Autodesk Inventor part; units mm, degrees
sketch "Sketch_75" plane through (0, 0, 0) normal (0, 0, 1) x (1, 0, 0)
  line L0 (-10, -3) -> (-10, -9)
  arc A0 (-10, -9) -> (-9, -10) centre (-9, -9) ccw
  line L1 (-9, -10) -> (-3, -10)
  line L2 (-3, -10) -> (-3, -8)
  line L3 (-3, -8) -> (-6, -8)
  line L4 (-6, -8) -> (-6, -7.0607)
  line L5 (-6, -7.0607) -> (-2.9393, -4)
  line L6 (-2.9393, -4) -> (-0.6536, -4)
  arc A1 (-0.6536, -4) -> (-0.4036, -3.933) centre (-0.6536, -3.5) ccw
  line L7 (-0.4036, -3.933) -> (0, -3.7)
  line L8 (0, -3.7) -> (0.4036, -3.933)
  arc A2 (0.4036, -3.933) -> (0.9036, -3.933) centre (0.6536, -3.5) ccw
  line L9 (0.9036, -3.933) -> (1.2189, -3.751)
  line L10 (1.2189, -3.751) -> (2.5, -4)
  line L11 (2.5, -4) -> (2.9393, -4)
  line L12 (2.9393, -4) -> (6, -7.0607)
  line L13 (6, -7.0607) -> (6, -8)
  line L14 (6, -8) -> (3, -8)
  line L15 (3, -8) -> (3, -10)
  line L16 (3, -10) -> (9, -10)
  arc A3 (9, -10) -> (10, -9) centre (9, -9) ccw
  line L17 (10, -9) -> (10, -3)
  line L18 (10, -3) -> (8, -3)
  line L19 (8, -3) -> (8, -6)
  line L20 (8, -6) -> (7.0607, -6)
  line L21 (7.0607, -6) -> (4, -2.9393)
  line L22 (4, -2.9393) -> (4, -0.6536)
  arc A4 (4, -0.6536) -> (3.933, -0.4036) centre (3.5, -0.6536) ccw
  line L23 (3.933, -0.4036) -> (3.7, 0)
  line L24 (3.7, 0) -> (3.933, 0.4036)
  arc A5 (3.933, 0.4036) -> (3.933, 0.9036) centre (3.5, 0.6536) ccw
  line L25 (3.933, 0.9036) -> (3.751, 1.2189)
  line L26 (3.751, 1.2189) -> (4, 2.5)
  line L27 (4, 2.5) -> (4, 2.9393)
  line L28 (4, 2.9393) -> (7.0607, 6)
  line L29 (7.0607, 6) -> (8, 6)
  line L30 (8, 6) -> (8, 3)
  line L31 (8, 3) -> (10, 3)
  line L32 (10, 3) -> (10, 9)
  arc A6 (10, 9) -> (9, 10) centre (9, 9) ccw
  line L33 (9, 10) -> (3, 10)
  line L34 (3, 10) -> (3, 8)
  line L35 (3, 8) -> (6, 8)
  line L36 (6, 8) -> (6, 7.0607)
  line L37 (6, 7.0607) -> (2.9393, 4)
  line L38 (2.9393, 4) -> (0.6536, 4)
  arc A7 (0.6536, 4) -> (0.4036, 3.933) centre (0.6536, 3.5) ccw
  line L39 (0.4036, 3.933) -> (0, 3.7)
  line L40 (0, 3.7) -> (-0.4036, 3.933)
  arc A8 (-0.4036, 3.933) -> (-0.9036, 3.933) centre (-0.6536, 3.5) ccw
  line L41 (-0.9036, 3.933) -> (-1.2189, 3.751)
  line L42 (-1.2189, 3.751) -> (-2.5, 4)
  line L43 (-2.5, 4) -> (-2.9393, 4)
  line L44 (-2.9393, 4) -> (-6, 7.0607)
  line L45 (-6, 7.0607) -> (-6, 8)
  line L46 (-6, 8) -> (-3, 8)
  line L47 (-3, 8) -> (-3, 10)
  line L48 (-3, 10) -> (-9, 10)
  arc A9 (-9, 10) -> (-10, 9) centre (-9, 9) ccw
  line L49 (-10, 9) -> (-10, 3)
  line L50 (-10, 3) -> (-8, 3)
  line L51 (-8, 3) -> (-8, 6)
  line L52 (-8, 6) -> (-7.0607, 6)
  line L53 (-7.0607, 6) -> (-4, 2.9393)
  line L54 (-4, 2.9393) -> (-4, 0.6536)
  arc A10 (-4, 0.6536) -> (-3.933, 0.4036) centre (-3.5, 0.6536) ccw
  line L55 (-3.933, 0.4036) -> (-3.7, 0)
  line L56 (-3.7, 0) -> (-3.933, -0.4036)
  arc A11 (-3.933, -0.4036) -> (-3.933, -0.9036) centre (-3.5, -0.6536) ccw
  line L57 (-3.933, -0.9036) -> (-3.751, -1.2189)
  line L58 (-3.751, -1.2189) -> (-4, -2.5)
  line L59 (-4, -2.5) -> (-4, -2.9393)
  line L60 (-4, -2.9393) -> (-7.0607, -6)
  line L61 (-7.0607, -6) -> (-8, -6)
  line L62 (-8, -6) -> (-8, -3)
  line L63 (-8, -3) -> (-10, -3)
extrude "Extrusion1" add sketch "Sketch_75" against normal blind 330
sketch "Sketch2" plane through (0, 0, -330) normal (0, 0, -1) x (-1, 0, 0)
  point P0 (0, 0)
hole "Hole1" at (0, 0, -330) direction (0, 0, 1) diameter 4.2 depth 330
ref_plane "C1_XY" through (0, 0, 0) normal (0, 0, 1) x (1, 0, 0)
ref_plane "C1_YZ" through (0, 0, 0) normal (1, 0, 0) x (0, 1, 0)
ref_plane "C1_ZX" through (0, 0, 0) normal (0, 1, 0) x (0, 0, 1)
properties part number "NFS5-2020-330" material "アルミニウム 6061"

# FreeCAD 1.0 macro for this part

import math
import FreeCAD as App
import Part
import Sketcher

V = App.Vector
Q = App.Units.Quantity

doc = App.newDocument("Part")
body = doc.addObject("PartDesign::Body", "Body")

sketch1 = body.newObject("Sketcher::SketchObject", "Sketch")
sketch1.AttachmentSupport = (doc.getObject("XY_Plane"), [""])
sketch1.MapMode = "FlatFace"
sketch1.addGeometry([
    Part.LineSegment(V(-8, -3, 0), V(-10, -3, 0)),
    Part.LineSegment(V(-10, -3, 0), V(-10, -9, 0)),
    Part.ArcOfCircle(Part.Circle(V(-9, -9, 0), V(0, 0, 1), 1), math.radians(180), math.radians(270)),
    Part.LineSegment(V(-9, -10, 0), V(-3, -10, 0)),
    Part.LineSegment(V(-3, -10, 0), V(-3, -8, 0)),
    Part.LineSegment(V(-3, -8, 0), V(-6, -8, 0)),
    Part.LineSegment(V(-6, -8, 0), V(-6, -7.0607, 0)),
    Part.LineSegment(V(-6, -7.0607, 0), V(-2.9393, -4, 0)),
    Part.LineSegment(V(-2.9393, -4, 0), V(-0.6536, -4, 0)),
    Part.ArcOfCircle(Part.Circle(V(-0.6536, -3.5, 0), V(0, 0, 1), 0.5), math.radians(-90), math.radians(-59.999272)),
    Part.LineSegment(V(-0.4036, -3.933, 0), V(0, -3.7, 0)),
    Part.LineSegment(V(0, -3.7, 0), V(0.4036, -3.933, 0)),
    Part.ArcOfCircle(Part.Circle(V(0.6536, -3.5, 0), V(0, 0, 1), 0.499989), math.radians(-120.000728), math.radians(-59.999272)),
    Part.LineSegment(V(0.9036, -3.933, 0), V(1.2189, -3.751, 0)),
    Part.LineSegment(V(1.2189, -3.751, 0), V(2.5, -4, 0)),
    Part.LineSegment(V(2.5, -4, 0), V(2.9393, -4, 0)),
    Part.LineSegment(V(2.9393, -4, 0), V(6, -7.0607, 0)),
    Part.LineSegment(V(6, -7.0607, 0), V(6, -8, 0)),
    Part.LineSegment(V(6, -8, 0), V(3, -8, 0)),
    Part.LineSegment(V(3, -8, 0), V(3, -10, 0)),
    Part.LineSegment(V(3, -10, 0), V(9, -10, 0)),
    Part.ArcOfCircle(Part.Circle(V(9, -9, 0), V(0, 0, 1), 1), math.radians(-90), math.radians(0)),
    Part.LineSegment(V(10, -9, 0), V(10, -3, 0)),
    Part.LineSegment(V(10, -3, 0), V(8, -3, 0)),
    Part.LineSegment(V(8, -3, 0), V(8, -6, 0)),
    Part.LineSegment(V(8, -6, 0), V(7.0607, -6, 0)),
    Part.LineSegment(V(7.0607, -6, 0), V(4, -2.9393, 0)),
    Part.LineSegment(V(4, -2.9393, 0), V(4, -0.6536, 0)),
    Part.ArcOfCircle(Part.Circle(V(3.5, -0.6536, 0), V(0, 0, 1), 0.5), math.radians(0), math.radians(30.000728)),
    Part.LineSegment(V(3.933, -0.4036, 0), V(3.7, 0, 0)),
    Part.LineSegment(V(3.7, 0, 0), V(3.933, 0.4036, 0)),
    Part.ArcOfCircle(Part.Circle(V(3.5, 0.6536, 0), V(0, 0, 1), 0.499989), math.radians(-30.000728), math.radians(30.000728)),
    Part.LineSegment(V(3.933, 0.9036, 0), V(3.751, 1.2189, 0)),
    Part.LineSegment(V(3.751, 1.2189, 0), V(4, 2.5, 0)),
    Part.LineSegment(V(4, 2.5, 0), V(4, 2.9393, 0)),
    Part.LineSegment(V(4, 2.9393, 0), V(7.0607, 6, 0)),
    Part.LineSegment(V(7.0607, 6, 0), V(8, 6, 0)),
    Part.LineSegment(V(8, 6, 0), V(8, 3, 0)),
    Part.LineSegment(V(8, 3, 0), V(10, 3, 0)),
    Part.LineSegment(V(10, 3, 0), V(10, 9, 0)),
    Part.ArcOfCircle(Part.Circle(V(9, 9, 0), V(0, 0, 1), 1), math.radians(0), math.radians(90)),
    Part.LineSegment(V(9, 10, 0), V(3, 10, 0)),
    Part.LineSegment(V(3, 10, 0), V(3, 8, 0)),
    Part.LineSegment(V(3, 8, 0), V(6, 8, 0)),
    Part.LineSegment(V(6, 8, 0), V(6, 7.0607, 0)),
    Part.LineSegment(V(6, 7.0607, 0), V(2.9393, 4, 0)),
    Part.LineSegment(V(2.9393, 4, 0), V(0.6536, 4, 0)),
    Part.ArcOfCircle(Part.Circle(V(0.6536, 3.5, 0), V(0, 0, 1), 0.5), math.radians(90), math.radians(120.000728)),
    Part.LineSegment(V(0.4036, 3.933, 0), V(0, 3.7, 0)),
    Part.LineSegment(V(0, 3.7, 0), V(-0.4036, 3.933, 0)),
    Part.ArcOfCircle(Part.Circle(V(-0.6536, 3.5, 0), V(0, 0, 1), 0.499989), math.radians(59.999272), math.radians(120.000728)),
    Part.LineSegment(V(-0.9036, 3.933, 0), V(-1.2189, 3.751, 0)),
    Part.LineSegment(V(-1.2189, 3.751, 0), V(-2.5, 4, 0)),
    Part.LineSegment(V(-2.5, 4, 0), V(-2.9393, 4, 0)),
    Part.LineSegment(V(-2.9393, 4, 0), V(-6, 7.0607, 0)),
    Part.LineSegment(V(-6, 7.0607, 0), V(-6, 8, 0)),
    Part.LineSegment(V(-6, 8, 0), V(-3, 8, 0)),
    Part.LineSegment(V(-3, 8, 0), V(-3, 10, 0)),
    Part.LineSegment(V(-3, 10, 0), V(-9, 10, 0)),
    Part.ArcOfCircle(Part.Circle(V(-9, 9, 0), V(0, 0, 1), 1), math.radians(90), math.radians(180)),
    Part.LineSegment(V(-10, 9, 0), V(-10, 3, 0)),
    Part.LineSegment(V(-10, 3, 0), V(-8, 3, 0)),
    Part.LineSegment(V(-8, 3, 0), V(-8, 6, 0)),
    Part.LineSegment(V(-8, 6, 0), V(-7.0607, 6, 0)),
    Part.LineSegment(V(-7.0607, 6, 0), V(-4, 2.9393, 0)),
    Part.LineSegment(V(-4, 2.9393, 0), V(-4, 0.6536, 0)),
    Part.ArcOfCircle(Part.Circle(V(-3.5, 0.6536, 0), V(0, 0, 1), 0.5), math.radians(180), math.radians(210.000728)),
    Part.LineSegment(V(-3.933, 0.4036, 0), V(-3.7, 0, 0)),
    Part.LineSegment(V(-3.7, 0, 0), V(-3.933, -0.4036, 0)),
    Part.ArcOfCircle(Part.Circle(V(-3.5, -0.6536, 0), V(0, 0, 1), 0.499989), math.radians(149.999272), math.radians(210.000728)),
    Part.LineSegment(V(-3.933, -0.9036, 0), V(-3.751, -1.2189, 0)),
    Part.LineSegment(V(-3.751, -1.2189, 0), V(-4, -2.5, 0)),
    Part.LineSegment(V(-4, -2.5, 0), V(-4, -2.9393, 0)),
    Part.LineSegment(V(-4, -2.9393, 0), V(-7.0607, -6, 0)),
    Part.LineSegment(V(-7.0607, -6, 0), V(-8, -6, 0)),
    Part.LineSegment(V(-8, -6, 0), V(-8, -3, 0)),
], False)
sketch1.addConstraint([
    Sketcher.Constraint("Coincident", 0, 2, 1, 1),
    Sketcher.Constraint("Tangent", 1, 2, 2, 1),
    Sketcher.Constraint("Tangent", 2, 2, 3, 1),
    Sketcher.Constraint("Coincident", 3, 2, 4, 1),
    Sketcher.Constraint("Coincident", 4, 2, 5, 1),
    Sketcher.Constraint("Coincident", 5, 2, 6, 1),
    Sketcher.Constraint("Coincident", 6, 2, 7, 1),
    Sketcher.Constraint("Coincident", 7, 2, 8, 1),
    Sketcher.Constraint("Tangent", 8, 2, 9, 1),
    Sketcher.Constraint("Tangent", 9, 2, 10, 1),
    Sketcher.Constraint("Coincident", 10, 2, 11, 1),
    Sketcher.Constraint("Tangent", 11, 2, 12, 1),
    Sketcher.Constraint("Tangent", 12, 2, 13, 1),
    Sketcher.Constraint("Coincident", 13, 2, 14, 1),
    Sketcher.Constraint("Coincident", 14, 2, 15, 1),
    Sketcher.Constraint("Coincident", 15, 2, 16, 1),
    Sketcher.Constraint("Coincident", 16, 2, 17, 1),
    Sketcher.Constraint("Coincident", 17, 2, 18, 1),
    Sketcher.Constraint("Coincident", 18, 2, 19, 1),
    Sketcher.Constraint("Coincident", 19, 2, 20, 1),
    Sketcher.Constraint("Tangent", 20, 2, 21, 1),
    Sketcher.Constraint("Tangent", 21, 2, 22, 1),
    Sketcher.Constraint("Coincident", 22, 2, 23, 1),
    Sketcher.Constraint("Coincident", 23, 2, 24, 1),
    Sketcher.Constraint("Coincident", 24, 2, 25, 1),
    Sketcher.Constraint("Coincident", 25, 2, 26, 1),
    Sketcher.Constraint("Coincident", 26, 2, 27, 1),
    Sketcher.Constraint("Tangent", 27, 2, 28, 1),
    Sketcher.Constraint("Tangent", 28, 2, 29, 1),
    Sketcher.Constraint("Coincident", 29, 2, 30, 1),
    Sketcher.Constraint("Tangent", 30, 2, 31, 1),
    Sketcher.Constraint("Tangent", 31, 2, 32, 1),
    Sketcher.Constraint("Coincident", 32, 2, 33, 1),
    Sketcher.Constraint("Coincident", 33, 2, 34, 1),
    Sketcher.Constraint("Coincident", 34, 2, 35, 1),
    Sketcher.Constraint("Coincident", 35, 2, 36, 1),
    Sketcher.Constraint("Coincident", 36, 2, 37, 1),
    Sketcher.Constraint("Coincident", 37, 2, 38, 1),
    Sketcher.Constraint("Coincident", 38, 2, 39, 1),
    Sketcher.Constraint("Tangent", 39, 2, 40, 1),
    Sketcher.Constraint("Tangent", 40, 2, 41, 1),
    Sketcher.Constraint("Coincident", 41, 2, 42, 1),
    Sketcher.Constraint("Coincident", 42, 2, 43, 1),
    Sketcher.Constraint("Coincident", 43, 2, 44, 1),
    Sketcher.Constraint("Coincident", 44, 2, 45, 1),
    Sketcher.Constraint("Coincident", 45, 2, 46, 1),
    Sketcher.Constraint("Tangent", 46, 2, 47, 1),
    Sketcher.Constraint("Tangent", 47, 2, 48, 1),
    Sketcher.Constraint("Coincident", 48, 2, 49, 1),
    Sketcher.Constraint("Tangent", 49, 2, 50, 1),
    Sketcher.Constraint("Tangent", 50, 2, 51, 1),
    Sketcher.Constraint("Coincident", 51, 2, 52, 1),
    Sketcher.Constraint("Coincident", 52, 2, 53, 1),
    Sketcher.Constraint("Coincident", 53, 2, 54, 1),
    Sketcher.Constraint("Coincident", 54, 2, 55, 1),
    Sketcher.Constraint("Coincident", 55, 2, 56, 1),
    Sketcher.Constraint("Coincident", 56, 2, 57, 1),
    Sketcher.Constraint("Coincident", 57, 2, 58, 1),
    Sketcher.Constraint("Tangent", 58, 2, 59, 1),
    Sketcher.Constraint("Tangent", 59, 2, 60, 1),
    Sketcher.Constraint("Coincident", 60, 2, 61, 1),
    Sketcher.Constraint("Coincident", 61, 2, 62, 1),
    Sketcher.Constraint("Coincident", 62, 2, 63, 1),
    Sketcher.Constraint("Coincident", 63, 2, 64, 1),
    Sketcher.Constraint("Coincident", 64, 2, 65, 1),
    Sketcher.Constraint("Tangent", 65, 2, 66, 1),
    Sketcher.Constraint("Tangent", 66, 2, 67, 1),
    Sketcher.Constraint("Coincident", 67, 2, 68, 1),
    Sketcher.Constraint("Tangent", 68, 2, 69, 1),
    Sketcher.Constraint("Tangent", 69, 2, 70, 1),
    Sketcher.Constraint("Coincident", 70, 2, 71, 1),
    Sketcher.Constraint("Coincident", 71, 2, 72, 1),
    Sketcher.Constraint("Coincident", 72, 2, 73, 1),
    Sketcher.Constraint("Coincident", 73, 2, 74, 1),
    Sketcher.Constraint("Coincident", 74, 2, 75, 1),
    Sketcher.Constraint("Coincident", 75, 2, 0, 1),
    Sketcher.Constraint("Horizontal", 0),
    Sketcher.Constraint("Vertical", 1),
    Sketcher.Constraint("Horizontal", 3),
    Sketcher.Constraint("Vertical", 4),
    Sketcher.Constraint("Horizontal", 5),
    Sketcher.Constraint("Vertical", 6),
    Sketcher.Constraint("Horizontal", 8),
    Sketcher.Constraint("Horizontal", 15),
    Sketcher.Constraint("Vertical", 17),
    Sketcher.Constraint("Horizontal", 18),
    Sketcher.Constraint("Vertical", 19),
    Sketcher.Constraint("Horizontal", 20),
    Sketcher.Constraint("Vertical", 22),
    Sketcher.Constraint("Horizontal", 23),
    Sketcher.Constraint("Vertical", 24),
    Sketcher.Constraint("Horizontal", 25),
    Sketcher.Constraint("Vertical", 27),
    Sketcher.Constraint("Vertical", 34),
    Sketcher.Constraint("Horizontal", 36),
    Sketcher.Constraint("Vertical", 37),
    Sketcher.Constraint("Horizontal", 38),
    Sketcher.Constraint("Vertical", 39),
    Sketcher.Constraint("Horizontal", 41),
    Sketcher.Constraint("Vertical", 42),
    Sketcher.Constraint("Horizontal", 43),
    Sketcher.Constraint("Vertical", 44),
    Sketcher.Constraint("Horizontal", 46),
    Sketcher.Constraint("Horizontal", 53),
    Sketcher.Constraint("Vertical", 55),
    Sketcher.Constraint("Horizontal", 56),
    Sketcher.Constraint("Vertical", 57),
    Sketcher.Constraint("Horizontal", 58),
    Sketcher.Constraint("Vertical", 60),
    Sketcher.Constraint("Horizontal", 61),
    Sketcher.Constraint("Vertical", 62),
    Sketcher.Constraint("Horizontal", 63),
    Sketcher.Constraint("Vertical", 65),
    Sketcher.Constraint("Vertical", 72),
    Sketcher.Constraint("Horizontal", 74),
    Sketcher.Constraint("Vertical", 75),
    Sketcher.Constraint("Equal", 9, 12),
    Sketcher.Constraint("Equal", 2, 21),
    Sketcher.Constraint("Equal", 12, 28),
    Sketcher.Constraint("Equal", 28, 31),
    Sketcher.Constraint("Equal", 21, 40),
    Sketcher.Constraint("Equal", 31, 47),
    Sketcher.Constraint("Equal", 47, 50),
    Sketcher.Constraint("Equal", 40, 59),
    Sketcher.Constraint("Equal", 50, 66),
    Sketcher.Constraint("Equal", 66, 69),
    Sketcher.Constraint("Symmetric", 2, 3, 40, 3, -1, 1),
    Sketcher.Constraint("Symmetric", 9, 3, 47, 3, -1, 1),
    Sketcher.Constraint("Symmetric", 12, 3, 50, 3, -1, 1),
    Sketcher.Constraint("Symmetric", 21, 3, 59, 3, -1, 1),
    Sketcher.Constraint("Symmetric", 28, 3, 66, 3, -1, 1),
    Sketcher.Constraint("Symmetric", 31, 3, 69, 3, -1, 1),
    Sketcher.Constraint("Symmetric", 4, 2, 42, 2, -1, 1),
    Sketcher.Constraint("Symmetric", 6, 2, 44, 2, -1, 1),
    Sketcher.Constraint("Symmetric", 10, 2, 48, 2, -1, 1),
    Sketcher.Constraint("Symmetric", 13, 2, 51, 2, -1, 1),
    Sketcher.Constraint("Symmetric", 14, 2, 52, 2, -1, 1),
    Sketcher.Constraint("Symmetric", 16, 2, 54, 2, -1, 1),
    Sketcher.Constraint("Symmetric", 18, 2, 56, 2, -1, 1),
    Sketcher.Constraint("Symmetric", 23, 2, 61, 2, -1, 1),
    Sketcher.Constraint("Symmetric", 25, 2, 63, 2, -1, 1),
    Sketcher.Constraint("Symmetric", 29, 2, 67, 2, -1, 1),
    Sketcher.Constraint("Symmetric", 32, 2, 70, 2, -1, 1),
    Sketcher.Constraint("Symmetric", 33, 2, 71, 2, -1, 1),
    Sketcher.Constraint("Symmetric", 35, 2, 73, 2, -1, 1),
    Sketcher.Constraint("Symmetric", 37, 2, 75, 2, -1, 1),
    Sketcher.Constraint("Symmetric", 9, 3, 12, 3, -2),
    Sketcher.Constraint("Symmetric", 2, 3, 21, 3, -2),
    Sketcher.Constraint("Symmetric", 31, 3, 66, 3, -2),
    Sketcher.Constraint("Symmetric", 7, 2, 15, 2, -2),
    Sketcher.Constraint("Symmetric", 6, 2, 16, 2, -2),
    Sketcher.Constraint("Symmetric", 4, 2, 18, 2, -2),
    Sketcher.Constraint("Symmetric", 37, 2, 61, 2, -2),
    Sketcher.Constraint("Symmetric", 35, 2, 63, 2, -2),
    Sketcher.Constraint("Symmetric", 34, 2, 64, 2, -2),
    Sketcher.Constraint("PointOnObject", 10, 2, -2),
    Sketcher.Constraint("PointOnObject", 29, 2, -1),
    Sketcher.Constraint("Parallel", 10, 13),
    Sketcher.Constraint("Perpendicular", 7, 16),
    Sketcher.Constraint("Parallel", 16, 26),
    Sketcher.Constraint("Perpendicular", 13, 29),
    Sketcher.Constraint("Parallel", 29, 32),
    Sketcher.Constraint("Perpendicular", 14, 33),
    Sketcher.Constraint("Perpendicular", 26, 35),
    Sketcher.Constraint("Parallel", 35, 45),
    Sketcher.Constraint("Perpendicular", 45, 54),
    Sketcher.Constraint("Perpendicular", 64, 73),
    Sketcher.Constraint("Equal", 58, 1),
    Sketcher.Constraint("Equal", 61, 4),
    Sketcher.Constraint("Equal", 74, 6),
    Sketcher.Constraint("Equal", 56, 24),
    Sketcher.Constraint("Equal", 46, 27),
    Sketcher.Constraint("Equal", 53, 34),
    Sketcher.Constraint("Equal", 16, 26),
    Sketcher.Constraint("Equal", 11, 29),
    Sketcher.Constraint("Radius", 2, 1.0),
    Sketcher.Constraint("Radius", 9, 0.5),
    Sketcher.Constraint("DistanceX", 0, 2, 0, 1, 2.0),
    Sketcher.Constraint("DistanceX", 3, 1, 3, 2, 6.0),
    Sketcher.Constraint("DistanceX", 5, 2, 5, 1, 3.0),
    Sketcher.Constraint("Angle", 14, Q("-10.999 deg")),
    Sketcher.Constraint("DistanceX", 2, 3, -1, 1, 9.0),
    Sketcher.Constraint("DistanceY", 7, 2, -1, 1, 4.0),
    Sketcher.Constraint("DistanceY", 10, 2, -1, 1, 3.7),
    Sketcher.Constraint("DistanceX", -1, 1, 14, 2, 2.5),
    Sketcher.Constraint("Distance", 10, 0.466),
    Sketcher.Constraint("DistanceX", 8, 1, 8, 2, 2.2857),
])
pad1 = body.newObject("PartDesign::Pad", "Pad")
pad1.Profile = sketch1
pad1.Length = 330
pad1.Reversed = True

sketch2 = body.newObject("Sketcher::SketchObject", "Sketch001")
sketch2.AttachmentSupport = (doc.getObject("XY_Plane"), [""])
sketch2.MapMode = "FlatFace"
sketch2.AttachmentOffset = App.Placement(V(0, 0, -330), App.Rotation())
sketch2.addGeometry(Part.Circle(V(0, 0, 0), V(0, 0, 1), 2.1), False)
sketch2.addConstraint([
    Sketcher.Constraint("Coincident", 0, 3, -1, 1),
    Sketcher.Constraint("Diameter", 0, 4.2),
])
doc.recompute()
hole = body.newObject("PartDesign::Hole", "Hole")
hole.Profile = sketch2
hole.ThreadType = "None"
hole.Diameter = 4.2
hole.DepthType = "Dimension"
hole.Depth = 330
hole.DrillPoint = "Flat"
hole.Reversed = True

doc.recompute()
